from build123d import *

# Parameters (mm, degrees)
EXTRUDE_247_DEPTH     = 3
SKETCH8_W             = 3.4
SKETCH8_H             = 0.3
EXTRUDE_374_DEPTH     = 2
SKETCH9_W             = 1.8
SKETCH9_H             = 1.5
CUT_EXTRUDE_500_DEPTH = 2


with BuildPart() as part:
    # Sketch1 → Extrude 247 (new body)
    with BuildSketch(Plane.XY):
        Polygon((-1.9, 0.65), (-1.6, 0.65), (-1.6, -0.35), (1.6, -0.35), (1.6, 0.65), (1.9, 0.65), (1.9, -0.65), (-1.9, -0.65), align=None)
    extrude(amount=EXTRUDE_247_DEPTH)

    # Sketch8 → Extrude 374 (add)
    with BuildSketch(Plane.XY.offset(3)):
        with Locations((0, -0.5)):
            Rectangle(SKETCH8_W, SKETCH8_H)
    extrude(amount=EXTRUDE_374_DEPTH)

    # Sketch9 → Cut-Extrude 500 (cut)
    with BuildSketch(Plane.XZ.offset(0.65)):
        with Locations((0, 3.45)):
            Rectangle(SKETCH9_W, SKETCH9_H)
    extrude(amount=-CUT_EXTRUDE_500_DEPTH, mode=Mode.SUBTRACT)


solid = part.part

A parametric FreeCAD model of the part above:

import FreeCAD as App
import Part
import Sketcher
from FreeCAD import Vector


def add_polygon(sketch, points):
    """Adds a closed chain of lines whose ends are joined by coincident constraints."""
    first, n = sketch.GeometryCount, len(points)
    for a, b in zip(points, points[1:] + points[:1]):
        sketch.addGeometry(Part.LineSegment(App.Vector(*a, 0), App.Vector(*b, 0)), False)
    for i in range(n):
        sketch.addConstraint(Sketcher.Constraint("Coincident", first + i, 2, first + (i + 1) % n, 1))

doc = App.newDocument("Part")
body = doc.addObject("PartDesign::Body", "Body")

sketch1 = body.newObject("Sketcher::SketchObject", "Sketch")
sketch1.AttachmentSupport = (doc.getObject("XY_Plane"), [""])
sketch1.MapMode = "FlatFace"
add_polygon(sketch1, [(-1.6, 0.65), (-1.9, 0.65), (-1.9, -0.65), (1.9, -0.65), (1.9, 0.65), (1.6, 0.65), (1.6, -0.35), (-1.6, -0.35)])
sketch1.addConstraint([
    Sketcher.Constraint("Horizontal", 0),
    Sketcher.Constraint("Vertical", 1),
    Sketcher.Constraint("Horizontal", 2),
    Sketcher.Constraint("Vertical", 3),
    Sketcher.Constraint("Horizontal", 4),
    Sketcher.Constraint("Vertical", 5),
    Sketcher.Constraint("Horizontal", 6),
    Sketcher.Constraint("Vertical", 7),
    Sketcher.Constraint("Symmetric", 0, 2, 2, 2, -1, 1),
    Sketcher.Constraint("Symmetric", 4, 2, 7, 2, -2),
    Sketcher.Constraint("DistanceY", 5, 2, 5, 1, 1.0),
    Sketcher.Constraint("DistanceX", 0, 2, 0, 1, 0.3),
    Sketcher.Constraint("DistanceX", 2, 1, 2, 2, 3.8),
    Sketcher.Constraint("DistanceY", 1, 2, 1, 1, 1.3),
])
pad1 = body.newObject("PartDesign::Pad", "Pad")
pad1.Profile = sketch1
pad1.Length = 3

sketch2 = body.newObject("Sketcher::SketchObject", "Sketch001")
sketch2.AttachmentSupport = (doc.getObject("XY_Plane"), [""])
sketch2.MapMode = "FlatFace"
sketch2.AttachmentOffset = App.Placement(Vector(0, 0, 3), App.Rotation())
add_polygon(sketch2, [(-1.7, -0.35), (-1.7, -0.65), (1.7, -0.65), (1.7, -0.35)])
sketch2.addConstraint([
    Sketcher.Constraint("Vertical", 0),
    Sketcher.Constraint("Horizontal", 1),
    Sketcher.Constraint("Vertical", 2),
    Sketcher.Constraint("Horizontal", 3),
    Sketcher.Constraint("DistanceX", 1, 1, 1, 2, 3.4),
    Sketcher.Constraint("DistanceY", 0, 2, 0, 1, 0.3),
    Sketcher.Constraint("DistanceX", 0, 2, -1, 1, 1.7),
    Sketcher.Constraint("DistanceY", 0, 2, -1, 1, 0.65),
])
pad2 = body.newObject("PartDesign::Pad", "Pad001")
pad2.Profile = sketch2
pad2.Length = 2

sketch3 = body.newObject("Sketcher::SketchObject", "Sketch002")
sketch3.AttachmentSupport = (doc.getObject("XZ_Plane"), [""])
sketch3.MapMode = "FlatFace"
sketch3.AttachmentOffset = App.Placement(Vector(0, 0, 0.65), App.Rotation())
add_polygon(sketch3, [(-0.9, 4.2), (-0.9, 2.7), (0.9, 2.7), (0.9, 4.2)])
sketch3.addConstraint([
    Sketcher.Constraint("Vertical", 0),
    Sketcher.Constraint("Horizontal", 1),
    Sketcher.Constraint("Vertical", 2),
    Sketcher.Constraint("Horizontal", 3),
    Sketcher.Constraint("DistanceX", 1, 1, 1, 2, 1.8),
    Sketcher.Constraint("DistanceY", 0, 2, 0, 1, 1.5),
    Sketcher.Constraint("DistanceX", 0, 2, -1, 1, 0.9),
    Sketcher.Constraint("DistanceY", -1, 1, 0, 2, 2.7),
])
pocket1 = body.newObject("PartDesign::Pocket", "Pocket")
pocket1.Profile = sketch3
pocket1.Length = 2

doc.recompute()
